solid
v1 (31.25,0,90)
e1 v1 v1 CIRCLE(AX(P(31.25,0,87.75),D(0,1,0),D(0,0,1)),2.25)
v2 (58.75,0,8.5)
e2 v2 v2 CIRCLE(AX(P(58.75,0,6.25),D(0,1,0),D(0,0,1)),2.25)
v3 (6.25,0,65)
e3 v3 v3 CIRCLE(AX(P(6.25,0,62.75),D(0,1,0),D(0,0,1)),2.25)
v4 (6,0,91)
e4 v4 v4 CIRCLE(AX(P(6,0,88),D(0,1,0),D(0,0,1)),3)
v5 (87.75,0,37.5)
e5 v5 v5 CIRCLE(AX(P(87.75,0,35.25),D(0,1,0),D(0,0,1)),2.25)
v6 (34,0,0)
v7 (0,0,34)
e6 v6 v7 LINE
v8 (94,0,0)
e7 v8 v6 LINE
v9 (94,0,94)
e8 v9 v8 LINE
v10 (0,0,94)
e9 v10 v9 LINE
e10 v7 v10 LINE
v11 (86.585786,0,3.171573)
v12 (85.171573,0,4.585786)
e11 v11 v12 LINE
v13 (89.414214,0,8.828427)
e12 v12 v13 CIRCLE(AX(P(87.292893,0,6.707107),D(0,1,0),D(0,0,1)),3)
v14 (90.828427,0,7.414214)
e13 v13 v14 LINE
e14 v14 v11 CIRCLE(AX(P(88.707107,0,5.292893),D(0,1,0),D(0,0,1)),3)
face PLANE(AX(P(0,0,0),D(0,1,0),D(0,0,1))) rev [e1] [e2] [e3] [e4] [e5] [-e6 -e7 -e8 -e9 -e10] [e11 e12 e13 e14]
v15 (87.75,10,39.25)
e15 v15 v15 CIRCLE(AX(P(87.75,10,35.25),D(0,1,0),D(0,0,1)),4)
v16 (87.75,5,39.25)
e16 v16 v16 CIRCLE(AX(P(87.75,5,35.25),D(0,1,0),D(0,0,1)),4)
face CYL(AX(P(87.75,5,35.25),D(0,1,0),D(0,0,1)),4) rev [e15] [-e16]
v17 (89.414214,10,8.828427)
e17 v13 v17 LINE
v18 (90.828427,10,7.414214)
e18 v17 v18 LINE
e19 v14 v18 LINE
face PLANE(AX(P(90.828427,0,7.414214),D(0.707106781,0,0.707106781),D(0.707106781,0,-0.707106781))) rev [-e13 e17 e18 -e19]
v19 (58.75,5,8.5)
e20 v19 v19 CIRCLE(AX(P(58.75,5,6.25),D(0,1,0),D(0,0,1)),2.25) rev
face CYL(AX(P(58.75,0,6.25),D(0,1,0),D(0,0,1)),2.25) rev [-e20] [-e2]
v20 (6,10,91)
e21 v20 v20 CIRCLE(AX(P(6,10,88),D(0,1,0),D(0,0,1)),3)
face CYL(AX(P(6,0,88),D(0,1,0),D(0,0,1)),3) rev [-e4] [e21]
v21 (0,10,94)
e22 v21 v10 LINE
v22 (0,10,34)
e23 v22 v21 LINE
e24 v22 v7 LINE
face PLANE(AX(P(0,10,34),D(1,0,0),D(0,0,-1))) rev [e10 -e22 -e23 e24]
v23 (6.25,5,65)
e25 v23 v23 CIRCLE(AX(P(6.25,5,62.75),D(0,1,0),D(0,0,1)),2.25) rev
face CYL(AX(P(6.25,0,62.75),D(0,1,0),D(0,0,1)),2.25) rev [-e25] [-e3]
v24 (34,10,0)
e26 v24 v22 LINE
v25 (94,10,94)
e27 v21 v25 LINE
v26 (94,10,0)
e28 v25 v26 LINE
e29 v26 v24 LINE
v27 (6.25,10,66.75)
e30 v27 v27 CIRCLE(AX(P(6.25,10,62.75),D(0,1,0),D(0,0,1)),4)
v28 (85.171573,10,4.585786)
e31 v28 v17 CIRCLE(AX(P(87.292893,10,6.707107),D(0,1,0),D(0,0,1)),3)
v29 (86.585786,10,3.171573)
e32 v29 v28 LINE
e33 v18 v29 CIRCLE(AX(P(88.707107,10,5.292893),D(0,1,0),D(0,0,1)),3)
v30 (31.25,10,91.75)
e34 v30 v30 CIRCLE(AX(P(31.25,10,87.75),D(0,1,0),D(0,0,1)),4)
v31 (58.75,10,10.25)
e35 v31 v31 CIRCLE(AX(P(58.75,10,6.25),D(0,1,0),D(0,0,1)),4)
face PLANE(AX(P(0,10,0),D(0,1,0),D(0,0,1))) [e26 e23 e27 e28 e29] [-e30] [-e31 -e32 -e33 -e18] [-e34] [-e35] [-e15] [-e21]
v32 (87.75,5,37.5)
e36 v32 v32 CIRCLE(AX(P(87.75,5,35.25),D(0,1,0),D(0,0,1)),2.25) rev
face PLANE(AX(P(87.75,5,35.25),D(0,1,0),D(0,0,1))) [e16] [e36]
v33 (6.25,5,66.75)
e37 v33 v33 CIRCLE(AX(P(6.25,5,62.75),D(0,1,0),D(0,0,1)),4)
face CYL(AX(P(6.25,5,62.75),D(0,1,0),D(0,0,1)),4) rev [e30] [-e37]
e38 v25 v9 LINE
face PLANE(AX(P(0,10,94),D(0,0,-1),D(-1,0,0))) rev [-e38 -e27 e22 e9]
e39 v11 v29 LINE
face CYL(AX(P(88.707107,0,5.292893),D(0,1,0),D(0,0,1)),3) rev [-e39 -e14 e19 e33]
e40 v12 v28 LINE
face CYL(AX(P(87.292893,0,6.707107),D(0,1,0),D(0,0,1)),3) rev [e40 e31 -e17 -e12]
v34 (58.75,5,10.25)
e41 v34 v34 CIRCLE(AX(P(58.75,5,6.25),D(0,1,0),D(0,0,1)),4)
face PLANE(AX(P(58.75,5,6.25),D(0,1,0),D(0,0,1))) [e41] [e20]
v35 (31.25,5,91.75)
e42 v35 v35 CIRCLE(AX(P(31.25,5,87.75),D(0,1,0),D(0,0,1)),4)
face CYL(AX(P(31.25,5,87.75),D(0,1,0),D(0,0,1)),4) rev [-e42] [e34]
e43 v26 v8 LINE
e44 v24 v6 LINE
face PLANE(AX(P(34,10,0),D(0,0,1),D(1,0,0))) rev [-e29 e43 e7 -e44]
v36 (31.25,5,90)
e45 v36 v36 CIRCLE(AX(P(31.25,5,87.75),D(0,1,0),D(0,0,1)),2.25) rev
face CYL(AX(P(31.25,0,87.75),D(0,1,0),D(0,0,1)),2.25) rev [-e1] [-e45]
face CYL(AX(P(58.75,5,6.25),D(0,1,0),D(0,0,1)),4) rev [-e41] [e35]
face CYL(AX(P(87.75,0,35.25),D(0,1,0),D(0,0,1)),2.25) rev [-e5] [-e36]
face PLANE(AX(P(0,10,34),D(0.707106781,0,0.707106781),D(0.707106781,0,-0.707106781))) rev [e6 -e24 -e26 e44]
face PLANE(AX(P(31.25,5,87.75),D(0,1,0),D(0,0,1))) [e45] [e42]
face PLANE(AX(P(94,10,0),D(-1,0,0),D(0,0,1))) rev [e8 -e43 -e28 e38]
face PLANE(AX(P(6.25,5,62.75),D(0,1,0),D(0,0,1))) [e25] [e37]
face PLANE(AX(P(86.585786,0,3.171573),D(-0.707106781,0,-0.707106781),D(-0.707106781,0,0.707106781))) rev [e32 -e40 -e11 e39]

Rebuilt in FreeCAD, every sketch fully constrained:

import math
import FreeCAD as App
import Part
import Sketcher
Q = App.Units.Quantity


def add_polygon(sketch, points):
    """Adds a closed chain of lines whose ends are joined by coincident constraints."""
    first, n = sketch.GeometryCount, len(points)
    for a, b in zip(points, points[1:] + points[:1]):
        sketch.addGeometry(Part.LineSegment(App.Vector(*a, 0), App.Vector(*b, 0)), False)
    for i in range(n):
        sketch.addConstraint(Sketcher.Constraint("Coincident", first + i, 2, first + (i + 1) % n, 1))

doc = App.newDocument("Part")
body = doc.addObject("PartDesign::Body", "Body")

# Sketch on XZ plane
sketch1 = doc.addObject("Sketcher::SketchObject", "Sketch")
body.addObject(sketch1)
sketch1.AttachmentSupport = (doc.XZ_Plane, [""])
sketch1.MapMode = "FlatFace"
add_polygon(sketch1, [(34, 0), (0, 34), (0, 94), (94, 94), (94, 0)])  # lines 0-4
sketch1.addConstraint(Sketcher.Constraint("Vertical", 1))
sketch1.addConstraint(Sketcher.Constraint("Horizontal", 2))
sketch1.addConstraint(Sketcher.Constraint("Vertical", 3))
sketch1.addConstraint(Sketcher.Constraint("Horizontal", 4))
sketch1.addConstraint(Sketcher.Constraint("PointOnObject", 0, 2, -2))
sketch1.addConstraint(Sketcher.Constraint("PointOnObject", 3, 2, -1))
sketch1.addConstraint(Sketcher.Constraint("Equal", 4, 1))
sketch1.addConstraint(Sketcher.Constraint("Equal", 2, 3))
sketch1.addConstraint(Sketcher.Constraint("DistanceX", 2, 1, 2, 2, Q("94 mm")))
sketch1.addConstraint(Sketcher.Constraint("DistanceX", 4, 2, 4, 1, Q("60 mm")))
pad1 = doc.addObject("PartDesign::Pad", "Pad")
body.addObject(pad1)
pad1.Profile = sketch1
pad1.Length = 10
pad1.Reversed = True

# Sketch on XZ plane
sketch2 = doc.addObject("Sketcher::SketchObject", "Sketch001")
body.addObject(sketch2)
sketch2.AttachmentSupport = (doc.XZ_Plane, [""])
sketch2.MapMode = "FlatFace"
sketch2.AttachmentOffset = App.Placement(App.Vector(0, 0, -10), App.Rotation())
sketch2.addGeometry(Part.Circle(App.Vector(58.8, 6.2, 0), App.Vector(0, 0, 1), 2.2), False)
sketch2.addGeometry(Part.Circle(App.Vector(87.8, 35.2, 0), App.Vector(0, 0, 1), 2.2), False)
sketch2.addGeometry(Part.Circle(App.Vector(6.2, 62.8, 0), App.Vector(0, 0, 1), 2.2), False)
sketch2.addGeometry(Part.Circle(App.Vector(31.2, 87.8, 0), App.Vector(0, 0, 1), 2.2), False)
sketch2.addGeometry(Part.Circle(App.Vector(6, 88, 0), App.Vector(0, 0, 1), 3), False)
sketch2.addGeometry(Part.LineSegment(App.Vector(89.4, 8.8, 0), App.Vector(90.8, 7.4, 0)), False)
sketch2.addGeometry(Part.ArcOfCircle(Part.Circle(App.Vector(88.7, 5.3, 0), App.Vector(0, 0, 1), 3), math.radians(-135), math.radians(45)), False)
sketch2.addGeometry(Part.LineSegment(App.Vector(86.6, 3.2, 0), App.Vector(85.2, 4.6, 0)), False)
sketch2.addGeometry(Part.ArcOfCircle(Part.Circle(App.Vector(87.3, 6.7, 0), App.Vector(0, 0, 1), 3), math.radians(45), math.radians(225)), False)
sketch2.addConstraint(Sketcher.Constraint("Tangent", 5, 2, 6, 2))
sketch2.addConstraint(Sketcher.Constraint("Tangent", 6, 1, 7, 1))
sketch2.addConstraint(Sketcher.Constraint("Tangent", 7, 2, 8, 2))
sketch2.addConstraint(Sketcher.Constraint("Tangent", 8, 1, 5, 1))
sketch2.addConstraint(Sketcher.Constraint("Equal", 0, 1))
sketch2.addConstraint(Sketcher.Constraint("Equal", 1, 2))
sketch2.addConstraint(Sketcher.Constraint("Equal", 2, 3))
sketch2.addConstraint(Sketcher.Constraint("Equal", 4, 6))
sketch2.addConstraint(Sketcher.Constraint("Equal", 6, 8))
sketch2.addConstraint(Sketcher.Constraint("Diameter", 4, Q("6 mm")))
sketch2.addConstraint(Sketcher.Constraint("Diameter", 0, Q("4.5 mm")))
sketch2.addConstraint(Sketcher.Constraint("Angle", 5, Q("-45 deg")))
sketch2.addConstraint(Sketcher.Constraint("Distance", 5, Q("2 mm")))
sketch2.addConstraint(Sketcher.Constraint("DistanceX", -1, 1, 4, 3, Q("6 mm")))
sketch2.addConstraint(Sketcher.Constraint("DistanceY", -1, 1, 4, 3, Q("88 mm")))
sketch2.addConstraint(Sketcher.Constraint("DistanceX", 0, 3, 1, 3, Q("29 mm")))
sketch2.addConstraint(Sketcher.Constraint("DistanceY", 0, 3, 1, 3, Q("29 mm")))
sketch2.addConstraint(Sketcher.Constraint("DistanceX", 2, 3, 3, 3, Q("25 mm")))
sketch2.addConstraint(Sketcher.Constraint("DistanceY", 2, 3, 3, 3, Q("25 mm")))
sketch2.addConstraint(Sketcher.Constraint("DistanceX", 2, 3, 0, 3, Q("52.5 mm")))
sketch2.addConstraint(Sketcher.Constraint("DistanceY", 0, 3, 2, 3, Q("56.5 mm")))
sketch2.addConstraint(Sketcher.Constraint("DistanceX", -1, 1, 0, 3, Q("58.75 mm")))
sketch2.addConstraint(Sketcher.Constraint("DistanceY", -1, 1, 0, 3, Q("6.25 mm")))
sketch2.addConstraint(Sketcher.Constraint("DistanceX", -1, 1, 6, 3, Q("88.707107 mm")))
sketch2.addConstraint(Sketcher.Constraint("DistanceY", -1, 1, 6, 3, Q("5.292893 mm")))
pocket1 = doc.addObject("PartDesign::Pocket", "Pocket")
body.addObject(pocket1)
pocket1.Profile = sketch2
pocket1.Length = 10
pocket1.Reversed = True

# Sketch on XZ plane
sketch3 = doc.addObject("Sketcher::SketchObject", "Sketch002")
body.addObject(sketch3)
sketch3.AttachmentSupport = (doc.XZ_Plane, [""])
sketch3.MapMode = "FlatFace"
sketch3.AttachmentOffset = App.Placement(App.Vector(0, 0, -10), App.Rotation())
sketch3.addGeometry(Part.Circle(App.Vector(58.8, 6.2, 0), App.Vector(0, 0, 1), 4), False)
sketch3.addGeometry(Part.Circle(App.Vector(87.8, 35.2, 0), App.Vector(0, 0, 1), 4), False)
sketch3.addGeometry(Part.Circle(App.Vector(6.2, 62.8, 0), App.Vector(0, 0, 1), 4), False)
sketch3.addGeometry(Part.Circle(App.Vector(31.2, 87.8, 0), App.Vector(0, 0, 1), 4), False)
sketch3.addConstraint(Sketcher.Constraint("Equal", 0, 1))
sketch3.addConstraint(Sketcher.Constraint("Equal", 1, 2))
sketch3.addConstraint(Sketcher.Constraint("Equal", 2, 3))
sketch3.addConstraint(Sketcher.Constraint("Diameter", 0, Q("8 mm")))
sketch3.addConstraint(Sketcher.Constraint("DistanceX", 0, 3, 1, 3, Q("29 mm")))
sketch3.addConstraint(Sketcher.Constraint("DistanceY", 0, 3, 1, 3, Q("29 mm")))
sketch3.addConstraint(Sketcher.Constraint("DistanceX", 2, 3, 3, 3, Q("25 mm")))
sketch3.addConstraint(Sketcher.Constraint("DistanceY", 2, 3, 3, 3, Q("25 mm")))
sketch3.addConstraint(Sketcher.Constraint("DistanceX", 2, 3, 0, 3, Q("52.5 mm")))
sketch3.addConstraint(Sketcher.Constraint("DistanceY", 0, 3, 2, 3, Q("56.5 mm")))
sketch3.addConstraint(Sketcher.Constraint("DistanceX", -1, 1, 0, 3, Q("58.75 mm")))
sketch3.addConstraint(Sketcher.Constraint("DistanceY", -1, 1, 0, 3, Q("6.25 mm")))
pocket2 = doc.addObject("PartDesign::Pocket", "Pocket001")
body.addObject(pocket2)
pocket2.Profile = sketch3
pocket2.Length = 5
pocket2.Reversed = True

doc.recompute()
